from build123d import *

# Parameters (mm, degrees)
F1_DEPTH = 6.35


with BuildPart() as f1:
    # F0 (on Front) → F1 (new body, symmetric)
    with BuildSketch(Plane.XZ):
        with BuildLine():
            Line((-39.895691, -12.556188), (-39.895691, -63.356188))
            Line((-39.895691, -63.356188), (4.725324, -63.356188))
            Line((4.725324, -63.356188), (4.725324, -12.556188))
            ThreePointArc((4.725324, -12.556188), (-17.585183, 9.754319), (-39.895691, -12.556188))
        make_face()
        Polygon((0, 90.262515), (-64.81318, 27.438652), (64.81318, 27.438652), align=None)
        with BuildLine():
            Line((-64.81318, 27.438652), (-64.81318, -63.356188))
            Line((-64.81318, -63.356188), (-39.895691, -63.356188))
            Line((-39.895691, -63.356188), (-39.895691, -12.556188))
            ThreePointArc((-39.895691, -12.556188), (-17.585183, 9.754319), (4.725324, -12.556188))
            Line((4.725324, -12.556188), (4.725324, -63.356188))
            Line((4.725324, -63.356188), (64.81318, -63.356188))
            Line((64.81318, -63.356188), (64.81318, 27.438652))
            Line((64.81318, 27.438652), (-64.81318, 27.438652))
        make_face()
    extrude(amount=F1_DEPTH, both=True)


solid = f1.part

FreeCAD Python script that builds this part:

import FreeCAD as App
import Part
import Sketcher
Q = App.Units.Quantity

doc = App.newDocument("Part")
body = doc.addObject("PartDesign::Body", "Body")

# Sketch on XZ plane
sketch1 = doc.addObject("Sketcher::SketchObject", "Sketch")
body.addObject(sketch1)
sketch1.AttachmentSupport = (doc.XZ_Plane, [""])
sketch1.MapMode = "FlatFace"
sketch1.addGeometry(Part.LineSegment(App.Vector(65, -63, 0), App.Vector(65, 27, 0)), False)
sketch1.addGeometry(Part.LineSegment(App.Vector(65, 27, 0), App.Vector(0, 90, 0)), False)
sketch1.addGeometry(Part.LineSegment(App.Vector(0, 90, 0), App.Vector(-65, 27, 0)), False)
sketch1.addGeometry(Part.LineSegment(App.Vector(-65, 27, 0), App.Vector(-65, -63, 0)), False)
sketch1.addGeometry(Part.LineSegment(App.Vector(-65, -63, 0), App.Vector(65, -63, 0)), False)
sketch1.addConstraint(Sketcher.Constraint("Coincident", 0, 2, 1, 1))
sketch1.addConstraint(Sketcher.Constraint("Coincident", 1, 2, 2, 1))
sketch1.addConstraint(Sketcher.Constraint("Coincident", 2, 2, 3, 1))
sketch1.addConstraint(Sketcher.Constraint("Coincident", 3, 2, 4, 1))
sketch1.addConstraint(Sketcher.Constraint("Coincident", 4, 2, 0, 1))
sketch1.addConstraint(Sketcher.Constraint("Vertical", 0))
sketch1.addConstraint(Sketcher.Constraint("Vertical", 3))
sketch1.addConstraint(Sketcher.Constraint("Horizontal", 4))
sketch1.addConstraint(Sketcher.Constraint("Symmetric", 0, 2, 2, 2, -2))
sketch1.addConstraint(Sketcher.Constraint("PointOnObject", 1, 2, -2))
sketch1.addConstraint(Sketcher.Constraint("DistanceX", 4, 1, 4, 2, Q("5.1034 in")))
sketch1.addConstraint(Sketcher.Constraint("DistanceY", 0, 1, 0, 2, Q("3.5746 in")))
sketch1.addConstraint(Sketcher.Constraint("Distance", 1, Q("3.5537 in")))
sketch1.addConstraint(Sketcher.Constraint("DistanceY", 3, 2, -1, 1, 63.356188))
pad1 = doc.addObject("PartDesign::Pad", "Pad")
body.addObject(pad1)
pad1.Profile = sketch1
pad1.Length = Q("0.5 in")
pad1.Midplane = True

doc.recompute()
